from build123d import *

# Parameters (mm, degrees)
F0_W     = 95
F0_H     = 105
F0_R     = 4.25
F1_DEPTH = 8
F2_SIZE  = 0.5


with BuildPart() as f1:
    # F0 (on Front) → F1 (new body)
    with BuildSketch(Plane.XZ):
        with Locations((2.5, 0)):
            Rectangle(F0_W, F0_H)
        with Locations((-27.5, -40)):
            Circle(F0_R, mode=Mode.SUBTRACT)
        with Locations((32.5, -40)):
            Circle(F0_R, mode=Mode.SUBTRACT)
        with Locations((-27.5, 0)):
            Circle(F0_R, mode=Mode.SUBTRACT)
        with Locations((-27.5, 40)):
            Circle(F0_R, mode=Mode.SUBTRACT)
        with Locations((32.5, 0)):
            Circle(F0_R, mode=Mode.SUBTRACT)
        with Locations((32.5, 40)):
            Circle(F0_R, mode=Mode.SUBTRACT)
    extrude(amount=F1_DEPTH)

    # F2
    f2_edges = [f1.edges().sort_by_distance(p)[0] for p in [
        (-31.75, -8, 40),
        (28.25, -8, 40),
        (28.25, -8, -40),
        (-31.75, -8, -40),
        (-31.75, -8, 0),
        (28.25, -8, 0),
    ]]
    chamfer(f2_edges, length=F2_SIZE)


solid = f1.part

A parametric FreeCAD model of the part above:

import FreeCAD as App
import Part
import Sketcher

V = App.Vector


def edges_at(feature, points):
    """Names of the edges that pass closest to the given points."""
    edges = feature.Shape.Edges
    near = lambda p: min(range(len(edges)), key=lambda i: edges[i].distToShape(Part.Vertex(*p))[0])
    return sorted({f"Edge{near(p) + 1}" for p in points})


def add_polygon(sketch, points):
    """Adds a closed chain of lines whose ends are joined by coincident constraints."""
    first, n = sketch.GeometryCount, len(points)
    for a, b in zip(points, points[1:] + points[:1]):
        sketch.addGeometry(Part.LineSegment(App.Vector(*a, 0), App.Vector(*b, 0)), False)
    for i in range(n):
        sketch.addConstraint(Sketcher.Constraint("Coincident", first + i, 2, first + (i + 1) % n, 1))

doc = App.newDocument("Part")
body = doc.addObject("PartDesign::Body", "Body")

# Sketch on XZ plane
sketch1 = body.newObject("Sketcher::SketchObject", "Sketch")
sketch1.AttachmentSupport = (doc.getObject("XZ_Plane"), [""])
sketch1.MapMode = "FlatFace"
add_polygon(sketch1, [(-45, 52.5), (-45, -52.5), (50, -52.5), (50, 52.5)])  # lines 0-3
sketch1.addGeometry(Part.Circle(V(-27.5, -40, 0), V(0, 0, 1), 4.2), False)  # 4
sketch1.addGeometry(Part.Circle(V(32.5, -40, 0), V(0, 0, 1), 4.2), False)  # 5
sketch1.addGeometry(Part.Circle(V(-27.5, 0, 0), V(0, 0, 1), 4.2), False)  # 6
sketch1.addGeometry(Part.Circle(V(-27.5, 40, 0), V(0, 0, 1), 4.2), False)  # 7
sketch1.addGeometry(Part.Circle(V(32.5, 0, 0), V(0, 0, 1), 4.2), False)  # 8
sketch1.addGeometry(Part.Circle(V(32.5, 40, 0), V(0, 0, 1), 4.2), False)  # 9
sketch1.addConstraint([
    Sketcher.Constraint("Vertical", 0),
    Sketcher.Constraint("Horizontal", 1),
    Sketcher.Constraint("Vertical", 2),
    Sketcher.Constraint("Horizontal", 3),
    Sketcher.Constraint("Equal", 4, 5),
    Sketcher.Constraint("Equal", 5, 6),
    Sketcher.Constraint("Equal", 6, 7),
    Sketcher.Constraint("Equal", 7, 8),
    Sketcher.Constraint("Equal", 8, 9),
    Sketcher.Constraint("Symmetric", 4, 3, 7, 3, -1),
    Sketcher.Constraint("Symmetric", 5, 3, 9, 3, -1),
    Sketcher.Constraint("PointOnObject", 6, 3, -1),
    Sketcher.Constraint("PointOnObject", 8, 3, -1),
    Sketcher.Constraint("Horizontal", 4, 3, 5, 3),
    Sketcher.Constraint("Vertical", 4, 3, 6, 3),
    Sketcher.Constraint("Vertical", 5, 3, 8, 3),
    Sketcher.Constraint("Diameter", 4, 8.5),
    Sketcher.Constraint("DistanceX", 1, 1, 1, 2, 95.0),
    Sketcher.Constraint("DistanceY", 0, 2, 0, 1, 105.0),
    Sketcher.Constraint("DistanceY", 4, 3, -1, 1, 40.0),
    Sketcher.Constraint("DistanceX", 0, 2, -1, 1, 45.0),
    Sketcher.Constraint("DistanceX", 4, 3, 5, 3, 60.0),
    Sketcher.Constraint("DistanceX", 4, 3, -1, 1, 27.5),
    Sketcher.Constraint("DistanceY", 0, 2, -1, 1, 52.5),
])
pad1 = body.newObject("PartDesign::Pad", "Pad")
pad1.Profile = sketch1
pad1.Length = 8
doc.recompute()

chamfer = body.newObject("PartDesign::Chamfer", "Chamfer")
chamfer.Base = (pad1, edges_at(pad1, [
    (-31.75, -8, 40),
    (28.25, -8, 40),
    (28.25, -8, -40),
    (-31.75, -8, -40),
    (-31.75, -8, 0),
    (28.25, -8, 0),
]))
chamfer.Size = 0.5

doc.recompute()
